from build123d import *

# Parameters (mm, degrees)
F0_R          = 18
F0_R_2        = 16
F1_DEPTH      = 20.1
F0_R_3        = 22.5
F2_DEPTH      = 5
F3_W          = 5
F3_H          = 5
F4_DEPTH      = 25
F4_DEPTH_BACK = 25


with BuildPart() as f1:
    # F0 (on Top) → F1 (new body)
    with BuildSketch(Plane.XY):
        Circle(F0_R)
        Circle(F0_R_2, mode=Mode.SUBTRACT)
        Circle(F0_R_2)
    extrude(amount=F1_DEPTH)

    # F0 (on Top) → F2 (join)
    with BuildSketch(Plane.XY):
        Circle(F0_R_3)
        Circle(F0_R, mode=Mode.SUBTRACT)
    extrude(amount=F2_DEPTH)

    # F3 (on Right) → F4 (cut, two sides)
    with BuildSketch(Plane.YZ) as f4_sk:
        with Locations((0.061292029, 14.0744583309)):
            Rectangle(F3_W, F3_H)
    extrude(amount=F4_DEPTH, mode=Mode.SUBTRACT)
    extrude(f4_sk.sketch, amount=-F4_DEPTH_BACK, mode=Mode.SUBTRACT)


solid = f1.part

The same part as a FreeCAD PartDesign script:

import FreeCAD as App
import Part
import Sketcher
from FreeCAD import Vector

doc = App.newDocument("Part")
params = doc.addObject("Spreadsheet::Sheet", "Params")
for row, (alias, value) in enumerate([
    ("sketch1_diameter", "36 mm"),
    ("pad1_length", "20.1 mm"),
    ("sketch2_diameter", "45 mm"),
    ("sketch2_diameter2", "36 mm"),
    ("pad2_length", "5 mm"),
    ("sketch3_width", "5 mm"),
], start=1):
    params.set(f"A{row}", alias)
    params.set(f"B{row}", "=" + value)
    params.setAlias(f"B{row}", alias)

body = doc.addObject("PartDesign::Body", "Body")

sketch1 = body.newObject("Sketcher::SketchObject", "Sketch")
sketch1.AttachmentSupport = (doc.getObject("XY_Plane"), [""])
sketch1.MapMode = "FlatFace"
sketch1.addGeometry(Part.Circle(Vector(0, 0, 0), Vector(0, 0, 1), 18), False)
sketch1.addConstraint([
    Sketcher.Constraint("Coincident", 0, 3, -1, 1),
    Sketcher.Constraint("Diameter", 0, 36.0),
])
sketch1.setExpression("Constraints[1]", "Params.sketch1_diameter")
pad1 = body.newObject("PartDesign::Pad", "Pad")
pad1.Profile = sketch1
pad1.setExpression("Length", "Params.pad1_length")

sketch2 = body.newObject("Sketcher::SketchObject", "Sketch001")
sketch2.AttachmentSupport = (doc.getObject("XY_Plane"), [""])
sketch2.MapMode = "FlatFace"
sketch2.addGeometry([
    Part.Circle(Vector(0, 0, 0), Vector(0, 0, 1), 22),
    Part.Circle(Vector(0, 0, 0), Vector(0, 0, 1), 18),
], False)
sketch2.addConstraint([
    Sketcher.Constraint("Coincident", 0, 3, -1, 1),
    Sketcher.Constraint("Coincident", 1, 3, -1, 1),
    Sketcher.Constraint("Diameter", 0, 45.0),
    Sketcher.Constraint("Diameter", 1, 36.0),
])
sketch2.setExpression("Constraints[2]", "Params.sketch2_diameter")
sketch2.setExpression("Constraints[3]", "Params.sketch2_diameter2")
pad2 = body.newObject("PartDesign::Pad", "Pad001")
pad2.Profile = sketch2
pad2.setExpression("Length", "Params.pad2_length")

sketch3 = body.newObject("Sketcher::SketchObject", "Sketch002")
sketch3.AttachmentSupport = (doc.getObject("YZ_Plane"), [""])
sketch3.MapMode = "FlatFace"
sketch3.addGeometry([
    Part.LineSegment(Vector(-2.4, 16.6, 0), Vector(-2.4, 11.6, 0)),
    Part.LineSegment(Vector(-2.4, 11.6, 0), Vector(2.6, 11.6, 0)),
    Part.LineSegment(Vector(2.6, 11.6, 0), Vector(2.6, 16.6, 0)),
    Part.LineSegment(Vector(2.6, 16.6, 0), Vector(-2.4, 16.6, 0)),
], False)
sketch3.addConstraint([
    Sketcher.Constraint("Coincident", 0, 2, 1, 1),
    Sketcher.Constraint("Coincident", 1, 2, 2, 1),
    Sketcher.Constraint("Coincident", 2, 2, 3, 1),
    Sketcher.Constraint("Coincident", 3, 2, 0, 1),
    Sketcher.Constraint("Vertical", 0),
    Sketcher.Constraint("Horizontal", 1),
    Sketcher.Constraint("Vertical", 2),
    Sketcher.Constraint("Horizontal", 3),
    Sketcher.Constraint("Equal", 3, 0),
    Sketcher.Constraint("DistanceX", 1, 1, 1, 2, 5.0),
    Sketcher.Constraint("DistanceY", -1, 1, 0, 2, 11.574458),
    Sketcher.Constraint("DistanceX", 0, 2, -1, 1, 2.438708),
])
sketch3.setExpression("Constraints[9]", "Params.sketch3_width")
pocket1 = body.newObject("PartDesign::Pocket", "Pocket")
pocket1.Profile = sketch3
pocket1.Type = "ThroughAll"
pocket1.Midplane = True

doc.recompute()
